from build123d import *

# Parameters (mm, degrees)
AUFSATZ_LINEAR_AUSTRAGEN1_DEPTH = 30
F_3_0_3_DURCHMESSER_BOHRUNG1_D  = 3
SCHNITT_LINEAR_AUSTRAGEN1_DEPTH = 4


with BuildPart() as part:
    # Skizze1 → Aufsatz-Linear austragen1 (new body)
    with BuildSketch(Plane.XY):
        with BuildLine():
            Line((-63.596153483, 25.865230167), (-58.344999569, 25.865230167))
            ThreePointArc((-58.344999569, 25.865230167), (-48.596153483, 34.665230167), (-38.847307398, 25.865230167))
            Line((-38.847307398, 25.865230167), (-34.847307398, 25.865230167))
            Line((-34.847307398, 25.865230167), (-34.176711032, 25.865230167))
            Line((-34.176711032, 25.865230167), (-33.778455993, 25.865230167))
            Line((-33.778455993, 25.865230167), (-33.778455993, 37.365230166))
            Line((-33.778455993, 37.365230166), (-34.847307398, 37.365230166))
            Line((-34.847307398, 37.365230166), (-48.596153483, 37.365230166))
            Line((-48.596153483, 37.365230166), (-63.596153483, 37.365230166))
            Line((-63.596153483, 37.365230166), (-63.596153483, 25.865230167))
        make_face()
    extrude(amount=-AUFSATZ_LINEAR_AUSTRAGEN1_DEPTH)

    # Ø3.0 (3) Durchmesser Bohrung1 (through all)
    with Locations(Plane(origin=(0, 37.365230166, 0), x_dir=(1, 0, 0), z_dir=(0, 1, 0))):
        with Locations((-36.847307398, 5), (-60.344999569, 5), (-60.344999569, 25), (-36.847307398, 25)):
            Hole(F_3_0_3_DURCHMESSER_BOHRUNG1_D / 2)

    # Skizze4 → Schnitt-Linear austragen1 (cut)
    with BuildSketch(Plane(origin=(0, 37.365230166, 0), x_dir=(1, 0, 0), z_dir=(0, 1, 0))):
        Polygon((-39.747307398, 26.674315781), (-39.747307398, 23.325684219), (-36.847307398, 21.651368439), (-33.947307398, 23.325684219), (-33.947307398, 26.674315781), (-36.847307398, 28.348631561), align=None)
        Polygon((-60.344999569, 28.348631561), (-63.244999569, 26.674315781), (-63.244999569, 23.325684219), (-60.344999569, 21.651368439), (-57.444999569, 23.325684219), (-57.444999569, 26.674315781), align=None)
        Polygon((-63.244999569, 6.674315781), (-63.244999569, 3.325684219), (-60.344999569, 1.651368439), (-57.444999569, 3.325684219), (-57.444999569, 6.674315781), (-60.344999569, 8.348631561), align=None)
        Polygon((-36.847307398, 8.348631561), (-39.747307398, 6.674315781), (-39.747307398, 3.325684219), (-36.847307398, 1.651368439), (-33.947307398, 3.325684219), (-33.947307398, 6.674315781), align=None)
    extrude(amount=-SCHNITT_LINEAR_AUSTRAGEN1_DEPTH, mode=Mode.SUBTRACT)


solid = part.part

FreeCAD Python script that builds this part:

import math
import FreeCAD as App
import Part
import Sketcher

V = App.Vector
Q = App.Units.Quantity


def add_polygon(sketch, points):
    """Adds a closed chain of lines whose ends are joined by coincident constraints."""
    first, n = sketch.GeometryCount, len(points)
    for a, b in zip(points, points[1:] + points[:1]):
        sketch.addGeometry(Part.LineSegment(App.Vector(*a, 0), App.Vector(*b, 0)), False)
    for i in range(n):
        sketch.addConstraint(Sketcher.Constraint("Coincident", first + i, 2, first + (i + 1) % n, 1))

doc = App.newDocument("Part")
body = doc.addObject("PartDesign::Body", "Body")

# Sketch on XY plane
sketch1 = doc.addObject("Sketcher::SketchObject", "Sketch")
body.addObject(sketch1)
sketch1.AttachmentSupport = (doc.XY_Plane, [""])
sketch1.MapMode = "FlatFace"
sketch1.addGeometry([
    Part.LineSegment(V(-63.596153, 25.86523, 0), V(-58.345, 25.86523, 0)),  # 0
    Part.ArcOfCircle(Part.Circle(V(-48.596153, 24.86523, 0), V(0, 0, 1), 9.8), math.radians(5.856702), math.radians(174.143298)),  # 1
    Part.LineSegment(V(-38.847307, 25.86523, 0), V(-33.778456, 25.86523, 0)),  # 2
    Part.LineSegment(V(-33.778456, 25.86523, 0), V(-33.778456, 37.36523, 0)),  # 3
    Part.LineSegment(V(-33.778456, 37.36523, 0), V(-63.596153, 37.36523, 0)),  # 4
    Part.LineSegment(V(-63.596153, 37.36523, 0), V(-63.596153, 25.86523, 0)),  # 5
], False)
sketch1.addConstraint([
    Sketcher.Constraint("Coincident", 0, 2, 1, 2),
    Sketcher.Constraint("Coincident", 1, 1, 2, 1),
    Sketcher.Constraint("Coincident", 2, 2, 3, 1),
    Sketcher.Constraint("Coincident", 3, 2, 4, 1),
    Sketcher.Constraint("Coincident", 4, 2, 5, 1),
    Sketcher.Constraint("Coincident", 5, 2, 0, 1),
    Sketcher.Constraint("Horizontal", 0),
    Sketcher.Constraint("Horizontal", 2),
    Sketcher.Constraint("Vertical", 3),
    Sketcher.Constraint("Horizontal", 4),
    Sketcher.Constraint("Vertical", 5),
    Sketcher.Constraint("Horizontal", 0, 2, 1, 1),
    Sketcher.Constraint("Radius", 1, 9.8),
    Sketcher.Constraint("DistanceY", 3, 1, 3, 2, 11.5),
    Sketcher.Constraint("DistanceY", 1, 3, 0, 2, 1.0),
    Sketcher.Constraint("DistanceX", 4, 2, 1, 3, 15.0),
    Sketcher.Constraint("DistanceX", 0, 2, -1, 1, 58.345),
    Sketcher.Constraint("DistanceX", 2, 1, 2, 2, 5.068851),
    Sketcher.Constraint("DistanceY", -1, 1, 1, 3, 24.86523),
])
pad1 = doc.addObject("PartDesign::Pad", "Pad")
body.addObject(pad1)
pad1.Profile = sketch1
pad1.Length = 30
pad1.Reversed = True

# Sketch on XZ plane
sketch2 = doc.addObject("Sketcher::SketchObject", "Sketch001")
body.addObject(sketch2)
sketch2.AttachmentSupport = (doc.XZ_Plane, [""])
sketch2.MapMode = "FlatFace"
sketch2.AttachmentOffset = App.Placement(V(0, 0, -37.36523), App.Rotation())
sketch2.addGeometry([
    Part.Circle(V(-36.847307, -5, 0), V(0, 0, 1), 1.5),
    Part.Circle(V(-60.345, -5, 0), V(0, 0, 1), 1.5),
    Part.Circle(V(-60.345, -25, 0), V(0, 0, 1), 1.5),
    Part.Circle(V(-36.847307, -25, 0), V(0, 0, 1), 1.5),
], False)
sketch2.addConstraint([
    Sketcher.Constraint("Equal", 0, 1),
    Sketcher.Constraint("Equal", 1, 2),
    Sketcher.Constraint("Equal", 2, 3),
    Sketcher.Constraint("Horizontal", 0, 3, 1, 3),
    Sketcher.Constraint("Horizontal", 2, 3, 3, 3),
    Sketcher.Constraint("Vertical", 1, 3, 2, 3),
    Sketcher.Constraint("Vertical", 0, 3, 3, 3),
    Sketcher.Constraint("Diameter", 0, 3.0),
    Sketcher.Constraint("DistanceY", 0, 3, -1, 1, 5.0),
    Sketcher.Constraint("DistanceY", 2, 3, -1, 1, 25.0),
    Sketcher.Constraint("DistanceX", 1, 3, -1, 1, 60.345),
    Sketcher.Constraint("DistanceX", 0, 3, -1, 1, 36.847307),
])
doc.recompute()
hole = doc.addObject("PartDesign::Hole", "Hole")
body.addObject(hole)
hole.Profile = sketch2
hole.ThreadType = "None"
hole.Diameter = 3
hole.DepthType = "ThroughAll"
hole.Reversed = True

# Sketch on XZ plane
sketch3 = doc.addObject("Sketcher::SketchObject", "Sketch002")
body.addObject(sketch3)
sketch3.AttachmentSupport = (doc.XZ_Plane, [""])
sketch3.MapMode = "FlatFace"
sketch3.AttachmentOffset = App.Placement(V(0, 0, -37.36523), App.Rotation())
add_polygon(sketch3, [(-39.747307, -26.674316), (-39.747307, -23.325684), (-36.847307, -21.651368), (-33.947307, -23.325684), (-33.947307, -26.674316), (-36.847307, -28.348632)])  # lines 0-5
add_polygon(sketch3, [(-60.345, -28.348632), (-63.245, -26.674316), (-63.245, -23.325684), (-60.345, -21.651368), (-57.445, -23.325684), (-57.445, -26.674316)])  # lines 6-11
add_polygon(sketch3, [(-63.245, -6.674316), (-63.245, -3.325684), (-60.345, -1.651368), (-57.445, -3.325684), (-57.445, -6.674316), (-60.345, -8.348632)])  # lines 12-17
add_polygon(sketch3, [(-36.847307, -8.348632), (-39.747307, -6.674316), (-39.747307, -3.325684), (-36.847307, -1.651368), (-33.947307, -3.325684), (-33.947307, -6.674316)])  # lines 18-23
sketch3.addConstraint([
    Sketcher.Constraint("Vertical", 0),
    Sketcher.Constraint("Vertical", 3),
    Sketcher.Constraint("Vertical", 7),
    Sketcher.Constraint("Vertical", 10),
    Sketcher.Constraint("Vertical", 12),
    Sketcher.Constraint("Vertical", 15),
    Sketcher.Constraint("Vertical", 19),
    Sketcher.Constraint("Vertical", 22),
    Sketcher.Constraint("Parallel", 1, 4),
    Sketcher.Constraint("Parallel", 2, 5),
    Sketcher.Constraint("Parallel", 5, 6),
    Sketcher.Constraint("Parallel", 4, 8),
    Sketcher.Constraint("Parallel", 6, 9),
    Sketcher.Constraint("Parallel", 8, 11),
    Sketcher.Constraint("Parallel", 11, 13),
    Sketcher.Constraint("Parallel", 9, 14),
    Sketcher.Constraint("Parallel", 13, 16),
    Sketcher.Constraint("Parallel", 14, 17),
    Sketcher.Constraint("Parallel", 17, 18),
    Sketcher.Constraint("Parallel", 16, 20),
    Sketcher.Constraint("Parallel", 18, 21),
    Sketcher.Constraint("Parallel", 20, 23),
    Sketcher.Constraint("Horizontal", 0, 2, 2, 2),
    Sketcher.Constraint("Horizontal", 3, 2, 5, 2),
    Sketcher.Constraint("Horizontal", 5, 2, 6, 2),
    Sketcher.Constraint("Horizontal", 2, 2, 7, 2),
    Sketcher.Constraint("Horizontal", 1, 2, 8, 2),
    Sketcher.Constraint("Horizontal", 7, 2, 9, 2),
    Sketcher.Constraint("Horizontal", 6, 2, 10, 2),
    Sketcher.Constraint("Horizontal", 12, 2, 14, 2),
    Sketcher.Constraint("Horizontal", 15, 2, 17, 2),
    Sketcher.Constraint("Horizontal", 17, 2, 18, 2),
    Sketcher.Constraint("Horizontal", 14, 2, 19, 2),
    Sketcher.Constraint("Horizontal", 13, 2, 20, 2),
    Sketcher.Constraint("Horizontal", 19, 2, 21, 2),
    Sketcher.Constraint("Horizontal", 18, 2, 22, 2),
    Sketcher.Constraint("Vertical", 1, 2, 4, 2),
    Sketcher.Constraint("Vertical", 7, 2, 12, 2),
    Sketcher.Constraint("Vertical", 11, 2, 13, 2),
    Sketcher.Constraint("Vertical", 5, 2, 18, 2),
    Sketcher.Constraint("Equal", 10, 12),
    Sketcher.Constraint("Angle", 1, Q("30 deg")),
    Sketcher.Constraint("DistanceY", 7, 2, 12, 2, 20.0),
    Sketcher.Constraint("DistanceX", 0, 2, 1, 2, 2.9),
    Sketcher.Constraint("DistanceX", 6, 2, -1, 1, 63.245),
    Sketcher.Constraint("DistanceY", 0, 1, 0, 2, 3.348632),
    Sketcher.Constraint("DistanceY", 1, 2, -1, 1, 21.651368),
    Sketcher.Constraint("DistanceX", 0, 2, -1, 1, 39.747307),
])
pocket1 = doc.addObject("PartDesign::Pocket", "Pocket")
body.addObject(pocket1)
pocket1.Profile = sketch3
pocket1.Length = 4
pocket1.Reversed = True

doc.recompute()
